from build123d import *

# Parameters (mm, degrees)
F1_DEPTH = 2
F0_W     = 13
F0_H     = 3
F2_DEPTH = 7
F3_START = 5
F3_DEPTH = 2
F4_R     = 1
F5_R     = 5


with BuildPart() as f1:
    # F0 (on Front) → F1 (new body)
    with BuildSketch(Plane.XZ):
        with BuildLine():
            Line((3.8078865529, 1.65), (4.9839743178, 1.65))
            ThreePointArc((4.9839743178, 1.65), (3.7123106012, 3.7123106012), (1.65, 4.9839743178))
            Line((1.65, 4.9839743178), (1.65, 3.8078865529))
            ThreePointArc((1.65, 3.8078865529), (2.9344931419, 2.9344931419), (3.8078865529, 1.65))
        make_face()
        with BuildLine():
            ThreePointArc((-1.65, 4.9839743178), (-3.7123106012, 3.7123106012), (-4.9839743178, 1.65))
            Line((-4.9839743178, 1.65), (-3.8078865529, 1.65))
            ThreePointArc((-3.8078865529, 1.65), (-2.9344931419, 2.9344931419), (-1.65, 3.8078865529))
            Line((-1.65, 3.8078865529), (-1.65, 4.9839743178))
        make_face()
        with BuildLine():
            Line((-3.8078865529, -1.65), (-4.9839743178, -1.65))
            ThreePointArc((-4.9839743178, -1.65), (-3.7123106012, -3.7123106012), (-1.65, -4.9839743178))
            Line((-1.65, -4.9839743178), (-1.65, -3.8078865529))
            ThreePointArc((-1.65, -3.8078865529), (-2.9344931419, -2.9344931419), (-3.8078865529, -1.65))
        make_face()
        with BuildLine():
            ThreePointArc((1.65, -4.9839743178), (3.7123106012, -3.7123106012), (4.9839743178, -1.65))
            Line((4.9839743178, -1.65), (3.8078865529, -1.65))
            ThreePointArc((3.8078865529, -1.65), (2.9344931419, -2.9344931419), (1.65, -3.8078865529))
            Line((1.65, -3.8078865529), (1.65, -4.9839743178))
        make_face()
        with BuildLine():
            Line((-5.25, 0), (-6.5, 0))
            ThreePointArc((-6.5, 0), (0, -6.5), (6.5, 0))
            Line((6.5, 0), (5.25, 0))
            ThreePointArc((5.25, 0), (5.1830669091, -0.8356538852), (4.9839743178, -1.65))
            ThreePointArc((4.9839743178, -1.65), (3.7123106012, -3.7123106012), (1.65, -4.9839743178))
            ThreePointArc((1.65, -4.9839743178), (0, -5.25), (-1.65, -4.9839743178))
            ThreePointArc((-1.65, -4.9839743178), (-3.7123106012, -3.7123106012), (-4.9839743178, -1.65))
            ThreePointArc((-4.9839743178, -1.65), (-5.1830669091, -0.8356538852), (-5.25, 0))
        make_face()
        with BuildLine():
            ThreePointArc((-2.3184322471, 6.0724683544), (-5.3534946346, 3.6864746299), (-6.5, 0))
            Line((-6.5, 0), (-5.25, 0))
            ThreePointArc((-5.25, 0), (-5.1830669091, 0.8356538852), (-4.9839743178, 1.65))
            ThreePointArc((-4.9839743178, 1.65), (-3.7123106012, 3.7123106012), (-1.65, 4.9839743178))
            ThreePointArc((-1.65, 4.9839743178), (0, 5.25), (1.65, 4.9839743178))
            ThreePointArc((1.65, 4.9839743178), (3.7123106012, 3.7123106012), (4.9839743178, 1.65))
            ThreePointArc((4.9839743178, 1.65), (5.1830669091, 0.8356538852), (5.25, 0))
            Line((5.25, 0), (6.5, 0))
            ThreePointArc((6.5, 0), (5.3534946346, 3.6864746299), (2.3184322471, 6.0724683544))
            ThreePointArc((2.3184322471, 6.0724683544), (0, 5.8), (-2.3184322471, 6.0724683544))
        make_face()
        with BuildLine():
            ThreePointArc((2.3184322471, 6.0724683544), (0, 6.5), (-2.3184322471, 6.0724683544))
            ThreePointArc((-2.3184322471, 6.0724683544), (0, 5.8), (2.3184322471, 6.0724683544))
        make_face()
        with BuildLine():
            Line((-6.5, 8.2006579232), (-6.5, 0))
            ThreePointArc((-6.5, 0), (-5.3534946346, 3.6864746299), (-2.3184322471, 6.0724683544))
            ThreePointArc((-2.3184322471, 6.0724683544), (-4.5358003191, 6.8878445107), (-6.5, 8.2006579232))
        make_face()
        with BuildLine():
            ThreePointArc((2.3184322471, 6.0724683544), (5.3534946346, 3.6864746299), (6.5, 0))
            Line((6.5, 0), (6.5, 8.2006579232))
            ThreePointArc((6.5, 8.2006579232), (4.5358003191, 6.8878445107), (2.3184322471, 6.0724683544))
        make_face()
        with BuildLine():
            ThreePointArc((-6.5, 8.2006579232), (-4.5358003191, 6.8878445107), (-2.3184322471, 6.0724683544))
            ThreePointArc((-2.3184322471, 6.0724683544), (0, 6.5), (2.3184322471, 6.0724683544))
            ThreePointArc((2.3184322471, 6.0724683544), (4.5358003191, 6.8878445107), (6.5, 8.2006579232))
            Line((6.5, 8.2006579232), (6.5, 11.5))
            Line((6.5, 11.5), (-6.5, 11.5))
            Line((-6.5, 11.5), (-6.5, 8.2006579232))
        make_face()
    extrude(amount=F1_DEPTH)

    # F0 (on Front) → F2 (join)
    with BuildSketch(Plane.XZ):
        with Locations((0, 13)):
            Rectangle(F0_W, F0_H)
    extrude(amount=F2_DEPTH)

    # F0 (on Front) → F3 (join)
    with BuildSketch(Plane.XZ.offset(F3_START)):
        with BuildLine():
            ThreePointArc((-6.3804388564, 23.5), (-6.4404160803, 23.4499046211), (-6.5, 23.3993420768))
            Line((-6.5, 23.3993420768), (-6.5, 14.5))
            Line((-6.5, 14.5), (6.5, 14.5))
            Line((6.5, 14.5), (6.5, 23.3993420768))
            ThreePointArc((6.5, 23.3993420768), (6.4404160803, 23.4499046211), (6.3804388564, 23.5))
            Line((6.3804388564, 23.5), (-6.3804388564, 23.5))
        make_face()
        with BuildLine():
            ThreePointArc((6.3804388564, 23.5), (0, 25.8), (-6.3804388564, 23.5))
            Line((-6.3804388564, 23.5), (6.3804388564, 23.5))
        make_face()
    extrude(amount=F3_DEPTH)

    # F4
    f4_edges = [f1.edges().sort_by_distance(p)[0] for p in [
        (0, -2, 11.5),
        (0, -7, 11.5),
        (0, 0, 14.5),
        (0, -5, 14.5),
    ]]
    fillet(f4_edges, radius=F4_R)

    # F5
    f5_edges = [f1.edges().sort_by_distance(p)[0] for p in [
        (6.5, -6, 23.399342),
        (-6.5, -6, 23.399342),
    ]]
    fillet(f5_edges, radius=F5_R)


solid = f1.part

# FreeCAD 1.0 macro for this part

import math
import FreeCAD as App
import Part
import Sketcher
from FreeCAD import Vector


def edges_at(feature, points):
    """Names of the edges that pass closest to the given points."""
    edges = feature.Shape.Edges
    near = lambda p: min(range(len(edges)), key=lambda i: edges[i].distToShape(Part.Vertex(*p))[0])
    return sorted({f"Edge{near(p) + 1}" for p in points})

doc = App.newDocument("Part")
body = doc.addObject("PartDesign::Body", "Body")

# Sketch on XZ plane
sketch1 = doc.addObject("Sketcher::SketchObject", "Sketch")
body.addObject(sketch1)
sketch1.AttachmentSupport = (doc.XZ_Plane, [""])
sketch1.MapMode = "FlatFace"
sketch1.addGeometry([
    Part.ArcOfCircle(Part.Circle(Vector(0, 0, 0), Vector(0, 0, 1), 6.5), math.radians(180), math.radians(360)),  # 0
    Part.LineSegment(Vector(6.5, 0, 0), Vector(6.5, 11.5, 0)),  # 1
    Part.LineSegment(Vector(6.5, 11.5, 0), Vector(-6.5, 11.5, 0)),  # 2
    Part.LineSegment(Vector(-6.5, 11.5, 0), Vector(-6.5, 0, 0)),  # 3
    Part.LineSegment(Vector(3.807887, 1.65, 0), Vector(4.983974, 1.65, 0)),  # 4
    Part.ArcOfCircle(Part.Circle(Vector(0, 0, 0), Vector(0, 0, 1), 5.25), math.radians(0), math.radians(18.317698)),  # 5
    Part.ArcOfCircle(Part.Circle(Vector(0, 0, 0), Vector(0, 0, 1), 5.25), math.radians(-18.317698), math.radians(0)),  # 6
    Part.LineSegment(Vector(4.983974, -1.65, 0), Vector(3.807887, -1.65, 0)),  # 7
    Part.ArcOfCircle(Part.Circle(Vector(0, 0, 0), Vector(0, 0, 1), 4.15), math.radians(-66.572373), math.radians(-23.427627)),  # 8
    Part.LineSegment(Vector(1.65, -3.807887, 0), Vector(1.65, -4.983974, 0)),  # 9
    Part.ArcOfCircle(Part.Circle(Vector(0, 0, 0), Vector(0, 0, 1), 5.25), math.radians(-108.317698), math.radians(-71.682302)),  # 10
    Part.LineSegment(Vector(-1.65, -4.983974, 0), Vector(-1.65, -3.807887, 0)),  # 11
    Part.ArcOfCircle(Part.Circle(Vector(0, 0, 0), Vector(0, 0, 1), 4.15), math.radians(-156.572373), math.radians(-113.427627)),  # 12
    Part.LineSegment(Vector(-3.807887, -1.65, 0), Vector(-4.983974, -1.65, 0)),  # 13
    Part.ArcOfCircle(Part.Circle(Vector(0, 0, 0), Vector(0, 0, 1), 5.25), math.radians(180), math.radians(198.317698)),  # 14
    Part.ArcOfCircle(Part.Circle(Vector(0, 0, 0), Vector(0, 0, 1), 5.25), math.radians(161.682302), math.radians(180)),  # 15
    Part.LineSegment(Vector(-4.983974, 1.65, 0), Vector(-3.807887, 1.65, 0)),  # 16
    Part.ArcOfCircle(Part.Circle(Vector(0, 0, 0), Vector(0, 0, 1), 4.15), math.radians(113.427627), math.radians(156.572373)),  # 17
    Part.LineSegment(Vector(-1.65, 3.807887, 0), Vector(-1.65, 4.983974, 0)),  # 18
    Part.ArcOfCircle(Part.Circle(Vector(0, 0, 0), Vector(0, 0, 1), 5.25), math.radians(71.682302), math.radians(108.317698)),  # 19
    Part.LineSegment(Vector(1.65, 4.983974, 0), Vector(1.65, 3.807887, 0)),  # 20
    Part.ArcOfCircle(Part.Circle(Vector(0, 0, 0), Vector(0, 0, 1), 4.15), math.radians(23.427627), math.radians(66.572373)),  # 21
], False)
sketch1.addConstraint([
    Sketcher.Constraint("Tangent", 0, 2, 1, 1),
    Sketcher.Constraint("Coincident", 1, 2, 2, 1),
    Sketcher.Constraint("Coincident", 2, 2, 3, 1),
    Sketcher.Constraint("Tangent", 3, 2, 0, 1),
    Sketcher.Constraint("Coincident", 4, 2, 5, 2),
    Sketcher.Constraint("Tangent", 5, 1, 6, 2),
    Sketcher.Constraint("Coincident", 6, 1, 7, 1),
    Sketcher.Constraint("Coincident", 7, 2, 8, 2),
    Sketcher.Constraint("Coincident", 8, 1, 9, 1),
    Sketcher.Constraint("Coincident", 9, 2, 10, 2),
    Sketcher.Constraint("Coincident", 10, 1, 11, 1),
    Sketcher.Constraint("Coincident", 11, 2, 12, 2),
    Sketcher.Constraint("Coincident", 12, 1, 13, 1),
    Sketcher.Constraint("Coincident", 13, 2, 14, 2),
    Sketcher.Constraint("Tangent", 14, 1, 15, 2),
    Sketcher.Constraint("Coincident", 15, 1, 16, 1),
    Sketcher.Constraint("Coincident", 16, 2, 17, 2),
    Sketcher.Constraint("Coincident", 17, 1, 18, 1),
    Sketcher.Constraint("Coincident", 18, 2, 19, 2),
    Sketcher.Constraint("Coincident", 19, 1, 20, 1),
    Sketcher.Constraint("Coincident", 20, 2, 21, 2),
    Sketcher.Constraint("Coincident", 21, 1, 4, 1),
    Sketcher.Constraint("Vertical", 1),
    Sketcher.Constraint("Horizontal", 2),
    Sketcher.Constraint("Vertical", 3),
    Sketcher.Constraint("Horizontal", 4),
    Sketcher.Constraint("Horizontal", 7),
    Sketcher.Constraint("Vertical", 9),
    Sketcher.Constraint("Vertical", 11),
    Sketcher.Constraint("Horizontal", 13),
    Sketcher.Constraint("Horizontal", 16),
    Sketcher.Constraint("Vertical", 18),
    Sketcher.Constraint("Vertical", 20),
    Sketcher.Constraint("Coincident", 0, 3, -1, 1),
    Sketcher.Constraint("Coincident", 5, 3, -1, 1),
    Sketcher.Constraint("Coincident", 8, 3, -1, 1),
    Sketcher.Constraint("Coincident", 10, 3, -1, 1),
    Sketcher.Constraint("Coincident", 12, 3, -1, 1),
    Sketcher.Constraint("Coincident", 14, 3, -1, 1),
    Sketcher.Constraint("Coincident", 17, 3, -1, 1),
    Sketcher.Constraint("Coincident", 19, 3, -1, 1),
    Sketcher.Constraint("Coincident", 21, 3, -1, 1),
    Sketcher.Constraint("Equal", 5, 6),
    Sketcher.Constraint("Equal", 6, 10),
    Sketcher.Constraint("Equal", 8, 12),
    Sketcher.Constraint("Equal", 10, 14),
    Sketcher.Constraint("Equal", 14, 15),
    Sketcher.Constraint("Equal", 12, 17),
    Sketcher.Constraint("Equal", 15, 19),
    Sketcher.Constraint("Equal", 17, 21),
    Sketcher.Constraint("PointOnObject", 5, 1, -1),
    Sketcher.Constraint("PointOnObject", 14, 1, -1),
    Sketcher.Constraint("Horizontal", 9, 2, 10, 1),
    Sketcher.Constraint("Horizontal", 7, 2, 12, 1),
    Sketcher.Constraint("Horizontal", 4, 2, 15, 1),
    Sketcher.Constraint("Horizontal", 18, 2, 19, 1),
    Sketcher.Constraint("Vertical", 4, 2, 6, 1),
    Sketcher.Constraint("Vertical", 11, 2, 17, 1),
    Sketcher.Constraint("Equal", 16, 9),
    Sketcher.Constraint("Radius", 0, 6.5),
    Sketcher.Constraint("Radius", 5, 5.25),
    Sketcher.Constraint("Radius", 8, 4.15),
    Sketcher.Constraint("DistanceY", 1, 1, 1, 2, 11.5),
    Sketcher.Constraint("DistanceY", 6, 1, 4, 2, 3.3),
])
pad1 = doc.addObject("PartDesign::Pad", "Pad")
body.addObject(pad1)
pad1.Profile = sketch1
pad1.Length = 2

# Sketch on XZ plane
sketch2 = doc.addObject("Sketcher::SketchObject", "Sketch001")
body.addObject(sketch2)
sketch2.AttachmentSupport = (doc.XZ_Plane, [""])
sketch2.MapMode = "FlatFace"
sketch2.addGeometry([
    Part.LineSegment(Vector(-6.5, 14.5, 0), Vector(-6.5, 11.5, 0)),
    Part.LineSegment(Vector(-6.5, 11.5, 0), Vector(6.5, 11.5, 0)),
    Part.LineSegment(Vector(6.5, 11.5, 0), Vector(6.5, 14.5, 0)),
    Part.LineSegment(Vector(6.5, 14.5, 0), Vector(-6.5, 14.5, 0)),
], False)
sketch2.addConstraint([
    Sketcher.Constraint("Coincident", 0, 2, 1, 1),
    Sketcher.Constraint("Coincident", 1, 2, 2, 1),
    Sketcher.Constraint("Coincident", 2, 2, 3, 1),
    Sketcher.Constraint("Coincident", 3, 2, 0, 1),
    Sketcher.Constraint("Vertical", 0),
    Sketcher.Constraint("Horizontal", 1),
    Sketcher.Constraint("Vertical", 2),
    Sketcher.Constraint("Horizontal", 3),
    Sketcher.Constraint("DistanceX", 1, 1, 1, 2, 13.0),
    Sketcher.Constraint("DistanceY", 0, 2, 0, 1, 3.0),
    Sketcher.Constraint("DistanceX", 0, 2, -1, 1, 6.5),
    Sketcher.Constraint("DistanceY", -1, 1, 0, 2, 11.5),
])
pad2 = doc.addObject("PartDesign::Pad", "Pad001")
body.addObject(pad2)
pad2.Profile = sketch2
pad2.Length = 7

# Sketch on XZ plane
sketch3 = doc.addObject("Sketcher::SketchObject", "Sketch002")
body.addObject(sketch3)
sketch3.AttachmentSupport = (doc.XZ_Plane, [""])
sketch3.MapMode = "FlatFace"
sketch3.AttachmentOffset = App.Placement(Vector(0, 0, 5), App.Rotation())
sketch3.addGeometry([
    Part.ArcOfCircle(Part.Circle(Vector(0.000001, 15.799999, 0), Vector(0, 0, 1), 10.000002), math.radians(129.646111), math.radians(130.541602)),  # 0
    Part.LineSegment(Vector(-6.5, 23.399342, 0), Vector(-6.5, 14.5, 0)),  # 1
    Part.LineSegment(Vector(-6.5, 14.5, 0), Vector(6.5, 14.5, 0)),  # 2
    Part.LineSegment(Vector(6.5, 14.5, 0), Vector(6.5, 23.399342, 0)),  # 3
    Part.ArcOfCircle(Part.Circle(Vector(-0.000001, 15.799999, 0), Vector(0, 0, 1), 10.000002), math.radians(49.458398), math.radians(50.353889)),  # 4
    Part.ArcOfCircle(Part.Circle(Vector(0, 15.8, 0), Vector(0, 0, 1), 10), math.radians(50.353889), math.radians(129.646111)),  # 5
], False)
sketch3.addConstraint([
    Sketcher.Constraint("Coincident", 0, 2, 1, 1),
    Sketcher.Constraint("Coincident", 1, 2, 2, 1),
    Sketcher.Constraint("Coincident", 2, 2, 3, 1),
    Sketcher.Constraint("Coincident", 3, 2, 4, 1),
    Sketcher.Constraint("Tangent", 4, 2, 5, 1),
    Sketcher.Constraint("Tangent", 5, 2, 0, 1),
    Sketcher.Constraint("Vertical", 1),
    Sketcher.Constraint("Horizontal", 2),
    Sketcher.Constraint("Vertical", 3),
    Sketcher.Constraint("Coincident", 4, 3, 0, 3),
    Sketcher.Constraint("Symmetric", 0, 2, 3, 2, -2),
    Sketcher.Constraint("Horizontal", 4, 2, 5, 2),
    Sketcher.Constraint("Radius", 0, 10.000002),
    Sketcher.Constraint("DistanceX", 2, 1, 2, 2, 13.0),
    Sketcher.Constraint("DistanceY", 2, 2, 4, 2, 9.0),
    Sketcher.Constraint("DistanceY", -1, 1, 0, 3, 15.799999),
    Sketcher.Constraint("DistanceY", -1, 1, 1, 2, 14.5),
])
pad3 = doc.addObject("PartDesign::Pad", "Pad002")
body.addObject(pad3)
pad3.Profile = sketch3
pad3.Length = 2
doc.recompute()

fillet = doc.addObject("PartDesign::Fillet", "Fillet")
body.addObject(fillet)
fillet.Base = (pad3, edges_at(pad3, [
    (0, -2, 11.5),
    (0, -7, 11.5),
    (0, 0, 14.5),
    (0, -5, 14.5),
]))
fillet.Radius = 1
doc.recompute()

fillet2 = doc.addObject("PartDesign::Fillet", "Fillet001")
body.addObject(fillet2)
fillet2.Base = (fillet, edges_at(fillet, [(6.5, -6, 23.399), (-6.5, -6, 23.399)]))
fillet2.Radius = 5

doc.recompute()
